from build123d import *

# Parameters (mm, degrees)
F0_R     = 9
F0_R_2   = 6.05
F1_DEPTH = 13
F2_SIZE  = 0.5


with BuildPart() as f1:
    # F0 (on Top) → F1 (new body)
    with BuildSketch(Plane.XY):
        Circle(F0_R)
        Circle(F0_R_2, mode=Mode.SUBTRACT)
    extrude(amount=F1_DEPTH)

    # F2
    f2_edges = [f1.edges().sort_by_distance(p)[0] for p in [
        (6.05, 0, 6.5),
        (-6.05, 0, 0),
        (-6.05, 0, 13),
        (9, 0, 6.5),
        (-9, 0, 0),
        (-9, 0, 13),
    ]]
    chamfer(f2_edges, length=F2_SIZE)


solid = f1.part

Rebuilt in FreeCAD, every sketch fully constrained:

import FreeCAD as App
import Part
import Sketcher
Q = App.Units.Quantity

doc = App.newDocument("Part")
body = doc.addObject("PartDesign::Body", "Body")

# Sketch on XY plane
sketch1 = body.newObject("Sketcher::SketchObject", "Sketch")
sketch1.AttachmentSupport = (doc.getObject("XY_Plane"), [""])
sketch1.MapMode = "FlatFace"
sketch1.addGeometry(Part.Circle(App.Vector(0, 0, 0), App.Vector(0, 0, 1), 9), False)
sketch1.addGeometry(Part.Circle(App.Vector(0, 0, 0), App.Vector(0, 0, 1), 6), False)
sketch1.addConstraint(Sketcher.Constraint("Coincident", 0, 3, -1, 1))
sketch1.addConstraint(Sketcher.Constraint("Coincident", 1, 3, -1, 1))
sketch1.addConstraint(Sketcher.Constraint("Diameter", 0, Q("18 mm")))
sketch1.addConstraint(Sketcher.Constraint("Diameter", 1, Q("12.1 mm")))
pad1 = body.newObject("PartDesign::Pad", "Pad")
pad1.Profile = sketch1
pad1.Length = 13
doc.recompute()

chamfer = body.newObject("PartDesign::Chamfer", "Chamfer")
chamfer.Base = (pad1, ["Edge1"])
chamfer.UseAllEdges = True
chamfer.Size = 0.5

doc.recompute()
